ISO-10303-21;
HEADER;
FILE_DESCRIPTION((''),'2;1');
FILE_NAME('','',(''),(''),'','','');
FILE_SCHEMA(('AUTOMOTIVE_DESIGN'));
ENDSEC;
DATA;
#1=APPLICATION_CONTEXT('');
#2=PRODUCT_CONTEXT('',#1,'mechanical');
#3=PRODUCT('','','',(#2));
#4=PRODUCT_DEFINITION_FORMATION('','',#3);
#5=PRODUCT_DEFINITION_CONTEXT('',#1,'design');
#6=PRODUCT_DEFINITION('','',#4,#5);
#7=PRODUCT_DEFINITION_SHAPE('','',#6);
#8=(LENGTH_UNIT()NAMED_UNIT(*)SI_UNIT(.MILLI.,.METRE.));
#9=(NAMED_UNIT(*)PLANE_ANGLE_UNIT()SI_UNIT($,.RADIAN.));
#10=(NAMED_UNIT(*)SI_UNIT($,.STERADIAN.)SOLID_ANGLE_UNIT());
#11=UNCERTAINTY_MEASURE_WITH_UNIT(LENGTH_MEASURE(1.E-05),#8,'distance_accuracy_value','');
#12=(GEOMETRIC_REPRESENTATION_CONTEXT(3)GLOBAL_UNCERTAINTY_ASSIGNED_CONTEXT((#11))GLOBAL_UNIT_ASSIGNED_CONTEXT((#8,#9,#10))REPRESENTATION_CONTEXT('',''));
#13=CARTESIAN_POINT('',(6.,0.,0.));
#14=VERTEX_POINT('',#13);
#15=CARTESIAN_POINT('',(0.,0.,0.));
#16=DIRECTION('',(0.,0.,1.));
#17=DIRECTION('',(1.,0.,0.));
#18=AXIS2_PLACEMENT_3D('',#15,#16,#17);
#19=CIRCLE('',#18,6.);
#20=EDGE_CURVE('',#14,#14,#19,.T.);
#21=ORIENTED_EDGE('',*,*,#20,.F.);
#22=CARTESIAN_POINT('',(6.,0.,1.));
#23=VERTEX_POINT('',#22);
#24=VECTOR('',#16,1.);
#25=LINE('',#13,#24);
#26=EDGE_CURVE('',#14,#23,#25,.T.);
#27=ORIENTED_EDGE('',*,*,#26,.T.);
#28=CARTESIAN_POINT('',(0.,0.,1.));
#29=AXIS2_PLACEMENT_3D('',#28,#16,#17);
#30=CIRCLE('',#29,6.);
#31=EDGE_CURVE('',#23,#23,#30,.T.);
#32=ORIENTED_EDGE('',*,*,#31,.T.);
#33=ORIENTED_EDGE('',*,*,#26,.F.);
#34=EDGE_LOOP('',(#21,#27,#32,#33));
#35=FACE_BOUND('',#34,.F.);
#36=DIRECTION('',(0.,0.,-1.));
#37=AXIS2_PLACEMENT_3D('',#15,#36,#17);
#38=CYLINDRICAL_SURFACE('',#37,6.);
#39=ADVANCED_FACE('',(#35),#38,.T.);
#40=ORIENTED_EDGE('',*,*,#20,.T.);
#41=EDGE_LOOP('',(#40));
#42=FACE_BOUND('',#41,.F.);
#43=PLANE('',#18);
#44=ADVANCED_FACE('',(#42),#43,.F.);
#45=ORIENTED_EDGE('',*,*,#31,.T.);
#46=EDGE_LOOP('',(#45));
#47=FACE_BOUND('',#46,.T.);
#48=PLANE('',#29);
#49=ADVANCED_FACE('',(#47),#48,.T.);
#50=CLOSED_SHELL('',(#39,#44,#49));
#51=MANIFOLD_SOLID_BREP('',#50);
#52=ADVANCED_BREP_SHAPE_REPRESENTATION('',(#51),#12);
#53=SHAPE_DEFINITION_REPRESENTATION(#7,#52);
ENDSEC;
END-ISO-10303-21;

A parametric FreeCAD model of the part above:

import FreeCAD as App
import Part
import Sketcher
from FreeCAD import Vector

doc = App.newDocument("Part")
body = doc.addObject("PartDesign::Body", "Body")

# Sketch on XY plane
sketch1 = body.newObject("Sketcher::SketchObject", "Sketch")
sketch1.AttachmentSupport = (doc.getObject("XY_Plane"), [""])
sketch1.MapMode = "FlatFace"
sketch1.addGeometry(Part.Circle(Vector(0, 0, 0), Vector(0, 0, 1), 6), False)
sketch1.addConstraint([
    Sketcher.Constraint("Coincident", 0, 3, -1, 1),
    Sketcher.Constraint("Diameter", 0, 12.0),
])
pad1 = body.newObject("PartDesign::Pad", "Pad")
pad1.Profile = sketch1
pad1.Length = 1

doc.recompute()
